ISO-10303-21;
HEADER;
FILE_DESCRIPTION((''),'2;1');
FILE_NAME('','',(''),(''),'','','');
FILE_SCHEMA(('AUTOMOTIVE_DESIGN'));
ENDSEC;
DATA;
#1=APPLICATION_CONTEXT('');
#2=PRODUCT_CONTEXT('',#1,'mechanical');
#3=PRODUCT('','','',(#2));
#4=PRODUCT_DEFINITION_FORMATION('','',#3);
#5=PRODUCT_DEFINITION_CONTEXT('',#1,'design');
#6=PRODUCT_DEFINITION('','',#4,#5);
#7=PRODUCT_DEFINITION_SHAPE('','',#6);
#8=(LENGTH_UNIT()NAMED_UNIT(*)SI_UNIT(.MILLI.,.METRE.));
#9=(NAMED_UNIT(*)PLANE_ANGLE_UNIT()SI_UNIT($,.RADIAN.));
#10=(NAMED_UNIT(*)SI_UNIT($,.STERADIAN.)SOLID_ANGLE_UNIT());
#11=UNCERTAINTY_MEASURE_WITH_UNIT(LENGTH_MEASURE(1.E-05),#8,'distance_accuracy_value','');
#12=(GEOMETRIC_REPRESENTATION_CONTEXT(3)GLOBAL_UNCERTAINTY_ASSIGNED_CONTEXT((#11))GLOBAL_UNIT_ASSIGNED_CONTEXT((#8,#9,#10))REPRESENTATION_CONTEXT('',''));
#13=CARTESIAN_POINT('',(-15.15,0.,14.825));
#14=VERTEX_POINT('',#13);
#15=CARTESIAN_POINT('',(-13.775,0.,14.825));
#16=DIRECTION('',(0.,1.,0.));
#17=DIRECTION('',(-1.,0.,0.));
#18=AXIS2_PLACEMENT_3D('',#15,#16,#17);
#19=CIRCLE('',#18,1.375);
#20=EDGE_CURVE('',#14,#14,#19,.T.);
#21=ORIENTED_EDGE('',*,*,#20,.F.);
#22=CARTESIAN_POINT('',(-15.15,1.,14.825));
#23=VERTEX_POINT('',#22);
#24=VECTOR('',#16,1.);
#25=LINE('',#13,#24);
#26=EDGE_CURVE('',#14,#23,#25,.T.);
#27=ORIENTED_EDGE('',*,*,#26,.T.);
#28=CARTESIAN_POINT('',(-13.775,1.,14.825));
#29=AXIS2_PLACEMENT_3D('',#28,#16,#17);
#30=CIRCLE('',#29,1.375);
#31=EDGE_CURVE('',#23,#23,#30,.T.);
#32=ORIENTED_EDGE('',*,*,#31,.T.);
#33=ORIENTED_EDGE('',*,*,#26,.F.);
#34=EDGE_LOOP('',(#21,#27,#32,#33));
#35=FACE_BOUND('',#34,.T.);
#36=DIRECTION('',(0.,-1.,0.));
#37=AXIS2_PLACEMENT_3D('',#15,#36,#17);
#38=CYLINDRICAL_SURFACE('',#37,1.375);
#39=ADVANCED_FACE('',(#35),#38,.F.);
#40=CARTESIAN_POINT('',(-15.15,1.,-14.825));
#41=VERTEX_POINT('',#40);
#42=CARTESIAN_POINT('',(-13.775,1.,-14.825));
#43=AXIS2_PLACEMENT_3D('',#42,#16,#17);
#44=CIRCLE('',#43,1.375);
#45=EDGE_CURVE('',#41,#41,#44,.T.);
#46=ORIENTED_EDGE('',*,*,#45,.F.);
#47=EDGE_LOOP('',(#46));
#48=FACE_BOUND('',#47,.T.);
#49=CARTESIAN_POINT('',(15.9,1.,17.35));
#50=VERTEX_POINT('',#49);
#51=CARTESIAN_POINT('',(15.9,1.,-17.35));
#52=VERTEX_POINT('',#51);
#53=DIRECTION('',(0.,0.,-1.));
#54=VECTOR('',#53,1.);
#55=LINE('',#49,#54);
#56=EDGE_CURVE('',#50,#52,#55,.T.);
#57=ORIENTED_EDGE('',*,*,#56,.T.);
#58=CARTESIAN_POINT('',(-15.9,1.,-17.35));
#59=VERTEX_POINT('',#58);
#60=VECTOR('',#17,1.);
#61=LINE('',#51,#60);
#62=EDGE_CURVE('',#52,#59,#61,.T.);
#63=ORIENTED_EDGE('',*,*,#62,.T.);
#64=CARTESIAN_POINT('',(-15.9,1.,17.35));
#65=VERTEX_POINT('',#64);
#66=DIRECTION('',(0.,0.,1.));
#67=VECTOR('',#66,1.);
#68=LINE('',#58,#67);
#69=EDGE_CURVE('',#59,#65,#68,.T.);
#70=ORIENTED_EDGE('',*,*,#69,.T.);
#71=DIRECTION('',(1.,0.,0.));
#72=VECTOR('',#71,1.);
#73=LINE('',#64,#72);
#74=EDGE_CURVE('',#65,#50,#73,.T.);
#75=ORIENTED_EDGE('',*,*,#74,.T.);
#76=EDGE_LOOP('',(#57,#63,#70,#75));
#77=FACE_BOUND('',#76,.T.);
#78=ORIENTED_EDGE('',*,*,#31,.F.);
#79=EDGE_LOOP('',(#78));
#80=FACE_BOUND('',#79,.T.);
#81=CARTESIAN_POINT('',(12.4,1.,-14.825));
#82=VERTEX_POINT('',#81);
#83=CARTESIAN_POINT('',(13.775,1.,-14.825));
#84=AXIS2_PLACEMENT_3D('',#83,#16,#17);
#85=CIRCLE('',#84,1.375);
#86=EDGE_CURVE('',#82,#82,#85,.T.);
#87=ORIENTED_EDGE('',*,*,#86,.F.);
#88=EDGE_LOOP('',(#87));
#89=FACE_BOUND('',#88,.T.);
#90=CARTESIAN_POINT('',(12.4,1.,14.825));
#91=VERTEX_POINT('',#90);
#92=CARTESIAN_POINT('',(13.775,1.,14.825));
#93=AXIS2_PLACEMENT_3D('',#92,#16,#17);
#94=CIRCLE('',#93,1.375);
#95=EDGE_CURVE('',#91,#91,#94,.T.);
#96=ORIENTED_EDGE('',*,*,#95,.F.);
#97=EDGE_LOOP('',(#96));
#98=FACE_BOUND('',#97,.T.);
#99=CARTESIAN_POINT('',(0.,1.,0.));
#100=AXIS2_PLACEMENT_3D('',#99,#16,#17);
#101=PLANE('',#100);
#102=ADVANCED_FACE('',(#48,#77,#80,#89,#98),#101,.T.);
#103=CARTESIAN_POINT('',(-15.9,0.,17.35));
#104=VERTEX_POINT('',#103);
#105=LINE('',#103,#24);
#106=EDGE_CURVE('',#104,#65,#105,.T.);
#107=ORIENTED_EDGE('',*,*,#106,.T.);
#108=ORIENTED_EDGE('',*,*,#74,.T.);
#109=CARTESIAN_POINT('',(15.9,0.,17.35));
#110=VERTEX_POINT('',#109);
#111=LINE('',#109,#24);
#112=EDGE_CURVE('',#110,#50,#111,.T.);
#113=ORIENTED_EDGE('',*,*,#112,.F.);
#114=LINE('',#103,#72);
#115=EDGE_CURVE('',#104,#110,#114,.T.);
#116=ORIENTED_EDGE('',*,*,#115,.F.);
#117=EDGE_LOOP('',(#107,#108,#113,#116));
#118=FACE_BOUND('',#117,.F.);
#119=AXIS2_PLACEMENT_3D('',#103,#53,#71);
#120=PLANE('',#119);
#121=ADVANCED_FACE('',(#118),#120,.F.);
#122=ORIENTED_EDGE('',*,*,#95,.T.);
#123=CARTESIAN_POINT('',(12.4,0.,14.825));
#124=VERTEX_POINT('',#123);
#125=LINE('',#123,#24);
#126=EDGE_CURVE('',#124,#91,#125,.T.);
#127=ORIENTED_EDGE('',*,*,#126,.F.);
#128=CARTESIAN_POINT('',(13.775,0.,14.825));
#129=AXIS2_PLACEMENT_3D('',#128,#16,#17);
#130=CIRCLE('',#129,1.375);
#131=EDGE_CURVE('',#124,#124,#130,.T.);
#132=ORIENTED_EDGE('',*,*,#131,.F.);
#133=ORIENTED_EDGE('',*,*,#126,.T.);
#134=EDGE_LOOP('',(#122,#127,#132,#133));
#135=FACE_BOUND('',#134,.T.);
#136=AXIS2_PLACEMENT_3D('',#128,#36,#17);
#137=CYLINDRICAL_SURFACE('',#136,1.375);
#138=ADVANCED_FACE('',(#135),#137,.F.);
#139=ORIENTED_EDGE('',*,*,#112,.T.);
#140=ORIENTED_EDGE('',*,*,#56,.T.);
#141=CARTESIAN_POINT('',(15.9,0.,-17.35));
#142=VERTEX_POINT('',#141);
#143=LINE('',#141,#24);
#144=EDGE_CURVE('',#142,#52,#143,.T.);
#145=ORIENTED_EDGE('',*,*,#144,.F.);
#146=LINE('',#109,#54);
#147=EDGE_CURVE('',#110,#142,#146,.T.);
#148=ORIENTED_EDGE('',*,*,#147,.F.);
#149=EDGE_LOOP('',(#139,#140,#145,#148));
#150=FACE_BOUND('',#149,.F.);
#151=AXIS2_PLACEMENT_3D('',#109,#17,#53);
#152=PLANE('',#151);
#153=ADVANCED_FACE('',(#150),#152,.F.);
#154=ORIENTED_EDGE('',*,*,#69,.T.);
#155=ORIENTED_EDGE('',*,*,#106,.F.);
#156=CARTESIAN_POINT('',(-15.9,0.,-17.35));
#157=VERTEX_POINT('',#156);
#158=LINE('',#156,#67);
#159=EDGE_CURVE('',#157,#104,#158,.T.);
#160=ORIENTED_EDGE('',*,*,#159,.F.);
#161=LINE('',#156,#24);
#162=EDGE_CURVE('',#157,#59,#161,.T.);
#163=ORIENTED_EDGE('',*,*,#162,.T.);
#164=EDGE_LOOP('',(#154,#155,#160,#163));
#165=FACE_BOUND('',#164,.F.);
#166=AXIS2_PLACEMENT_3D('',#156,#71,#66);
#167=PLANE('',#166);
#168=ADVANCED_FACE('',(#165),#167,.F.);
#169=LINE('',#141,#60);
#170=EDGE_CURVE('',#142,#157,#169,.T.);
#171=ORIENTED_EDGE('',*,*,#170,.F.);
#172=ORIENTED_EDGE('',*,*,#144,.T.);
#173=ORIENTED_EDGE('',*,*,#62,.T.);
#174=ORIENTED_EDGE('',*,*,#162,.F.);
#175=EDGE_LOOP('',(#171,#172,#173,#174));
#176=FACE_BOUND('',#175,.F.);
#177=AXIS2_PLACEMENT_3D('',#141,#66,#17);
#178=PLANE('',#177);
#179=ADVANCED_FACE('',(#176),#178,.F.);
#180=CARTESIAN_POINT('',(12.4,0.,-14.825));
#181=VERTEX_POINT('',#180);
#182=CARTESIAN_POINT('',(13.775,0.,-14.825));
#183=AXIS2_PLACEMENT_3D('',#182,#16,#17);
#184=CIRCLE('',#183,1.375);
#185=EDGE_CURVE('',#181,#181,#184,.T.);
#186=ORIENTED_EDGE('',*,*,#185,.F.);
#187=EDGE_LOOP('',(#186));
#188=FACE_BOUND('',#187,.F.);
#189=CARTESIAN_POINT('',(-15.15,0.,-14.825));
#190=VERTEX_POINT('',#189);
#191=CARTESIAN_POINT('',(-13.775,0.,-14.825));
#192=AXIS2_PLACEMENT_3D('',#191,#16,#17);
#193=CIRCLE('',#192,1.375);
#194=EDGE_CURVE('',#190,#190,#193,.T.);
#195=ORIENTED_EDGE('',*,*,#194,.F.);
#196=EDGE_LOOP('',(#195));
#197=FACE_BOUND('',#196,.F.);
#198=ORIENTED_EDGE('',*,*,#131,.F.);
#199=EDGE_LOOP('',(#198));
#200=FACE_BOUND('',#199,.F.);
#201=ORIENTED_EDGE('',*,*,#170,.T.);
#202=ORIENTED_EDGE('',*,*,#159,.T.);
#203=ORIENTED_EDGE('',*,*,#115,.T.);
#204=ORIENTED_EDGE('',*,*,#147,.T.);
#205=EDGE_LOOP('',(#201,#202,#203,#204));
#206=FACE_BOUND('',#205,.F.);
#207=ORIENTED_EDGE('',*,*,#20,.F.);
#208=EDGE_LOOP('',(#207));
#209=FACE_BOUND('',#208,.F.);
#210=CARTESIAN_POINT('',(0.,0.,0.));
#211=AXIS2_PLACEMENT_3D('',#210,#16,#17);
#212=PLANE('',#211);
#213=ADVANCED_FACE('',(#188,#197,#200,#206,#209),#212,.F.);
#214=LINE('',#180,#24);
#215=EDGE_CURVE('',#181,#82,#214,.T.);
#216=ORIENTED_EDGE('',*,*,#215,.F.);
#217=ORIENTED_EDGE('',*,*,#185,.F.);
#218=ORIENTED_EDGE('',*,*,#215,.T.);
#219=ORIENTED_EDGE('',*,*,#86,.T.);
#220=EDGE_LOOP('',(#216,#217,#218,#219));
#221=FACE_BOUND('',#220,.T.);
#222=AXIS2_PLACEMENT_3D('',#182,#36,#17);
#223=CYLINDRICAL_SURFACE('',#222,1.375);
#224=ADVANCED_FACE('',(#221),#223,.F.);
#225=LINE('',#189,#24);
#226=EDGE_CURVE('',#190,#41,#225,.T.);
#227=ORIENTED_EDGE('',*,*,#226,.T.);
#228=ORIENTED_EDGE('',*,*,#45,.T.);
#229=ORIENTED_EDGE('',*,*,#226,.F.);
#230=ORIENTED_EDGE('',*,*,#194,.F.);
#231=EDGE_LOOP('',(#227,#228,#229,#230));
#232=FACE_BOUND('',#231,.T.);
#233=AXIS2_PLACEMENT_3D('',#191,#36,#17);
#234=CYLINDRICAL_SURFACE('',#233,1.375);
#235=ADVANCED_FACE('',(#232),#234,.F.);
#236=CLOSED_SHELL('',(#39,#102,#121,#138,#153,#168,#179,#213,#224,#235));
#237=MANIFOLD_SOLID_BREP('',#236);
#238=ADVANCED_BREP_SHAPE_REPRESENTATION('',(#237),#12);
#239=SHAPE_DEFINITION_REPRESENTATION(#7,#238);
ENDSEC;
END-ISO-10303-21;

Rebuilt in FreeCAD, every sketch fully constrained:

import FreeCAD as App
import Part
import Sketcher
Q = App.Units.Quantity

doc = App.newDocument("Part")
params = doc.addObject("Spreadsheet::Sheet", "Params")
for row, (alias, value) in enumerate([
    ("sketch1_diameter", "2.75 mm"),
    ("sketch1_width", "31.8 mm"),
    ("sketch1_height", "34.7 mm"),
    ("pad1_length", "1 mm"),
], start=1):
    params.set(f"A{row}", alias)
    params.set(f"B{row}", "=" + value)
    params.setAlias(f"B{row}", alias)

body = doc.addObject("PartDesign::Body", "Body")

sketch1 = doc.addObject("Sketcher::SketchObject", "Sketch")
body.addObject(sketch1)
sketch1.AttachmentSupport = (doc.XZ_Plane, [""])
sketch1.MapMode = "FlatFace"
sketch1.addGeometry([
    Part.LineSegment(App.Vector(-15.9, -17.4, 0), App.Vector(-15.9, 17.4, 0)),
    Part.LineSegment(App.Vector(-15.9, 17.4, 0), App.Vector(15.9, 17.4, 0)),
    Part.LineSegment(App.Vector(15.9, 17.4, 0), App.Vector(15.9, -17.4, 0)),
    Part.LineSegment(App.Vector(15.9, -17.4, 0), App.Vector(-15.9, -17.4, 0)),
    Part.Circle(App.Vector(13.8, -14.8, 0), App.Vector(0, 0, 1), 1.4),
    Part.Circle(App.Vector(-13.8, -14.8, 0), App.Vector(0, 0, 1), 1.4),
    Part.Circle(App.Vector(13.8, 14.8, 0), App.Vector(0, 0, 1), 1.4),
    Part.Circle(App.Vector(-13.8, 14.8, 0), App.Vector(0, 0, 1), 1.4),
], False)
sketch1.addConstraint([
    Sketcher.Constraint("Coincident", 0, 2, 1, 1),
    Sketcher.Constraint("Coincident", 1, 2, 2, 1),
    Sketcher.Constraint("Coincident", 2, 2, 3, 1),
    Sketcher.Constraint("Coincident", 3, 2, 0, 1),
    Sketcher.Constraint("Vertical", 0),
    Sketcher.Constraint("Horizontal", 1),
    Sketcher.Constraint("Vertical", 2),
    Sketcher.Constraint("Horizontal", 3),
    Sketcher.Constraint("Equal", 4, 5),
    Sketcher.Constraint("Equal", 5, 6),
    Sketcher.Constraint("Equal", 6, 7),
    Sketcher.Constraint("Symmetric", 5, 3, 6, 3, -1, 1),
    Sketcher.Constraint("Symmetric", 4, 3, 7, 3, -1, 1),
    Sketcher.Constraint("Symmetric", 0, 2, 2, 2, -1, 1),
    Sketcher.Constraint("Symmetric", 4, 3, 5, 3, -2),
    Sketcher.Constraint("Diameter", 4, Q("2.75 mm")),
    Sketcher.Constraint("DistanceX", 1, 1, 1, 2, Q("31.8 mm")),
    Sketcher.Constraint("DistanceY", 0, 1, 0, 2, Q("34.7 mm")),
    Sketcher.Constraint("DistanceX", 0, 2, 7, 3, Q("2.125 mm")),
    Sketcher.Constraint("DistanceY", 7, 3, 0, 2, Q("2.525 mm")),
])
sketch1.setExpression("Constraints[15]", "Params.sketch1_diameter")
sketch1.setExpression("Constraints[16]", "Params.sketch1_width")
sketch1.setExpression("Constraints[17]", "Params.sketch1_height")
pad1 = doc.addObject("PartDesign::Pad", "Pad")
body.addObject(pad1)
pad1.Profile = sketch1
pad1.setExpression("Length", "Params.pad1_length")
pad1.Reversed = True

doc.recompute()
